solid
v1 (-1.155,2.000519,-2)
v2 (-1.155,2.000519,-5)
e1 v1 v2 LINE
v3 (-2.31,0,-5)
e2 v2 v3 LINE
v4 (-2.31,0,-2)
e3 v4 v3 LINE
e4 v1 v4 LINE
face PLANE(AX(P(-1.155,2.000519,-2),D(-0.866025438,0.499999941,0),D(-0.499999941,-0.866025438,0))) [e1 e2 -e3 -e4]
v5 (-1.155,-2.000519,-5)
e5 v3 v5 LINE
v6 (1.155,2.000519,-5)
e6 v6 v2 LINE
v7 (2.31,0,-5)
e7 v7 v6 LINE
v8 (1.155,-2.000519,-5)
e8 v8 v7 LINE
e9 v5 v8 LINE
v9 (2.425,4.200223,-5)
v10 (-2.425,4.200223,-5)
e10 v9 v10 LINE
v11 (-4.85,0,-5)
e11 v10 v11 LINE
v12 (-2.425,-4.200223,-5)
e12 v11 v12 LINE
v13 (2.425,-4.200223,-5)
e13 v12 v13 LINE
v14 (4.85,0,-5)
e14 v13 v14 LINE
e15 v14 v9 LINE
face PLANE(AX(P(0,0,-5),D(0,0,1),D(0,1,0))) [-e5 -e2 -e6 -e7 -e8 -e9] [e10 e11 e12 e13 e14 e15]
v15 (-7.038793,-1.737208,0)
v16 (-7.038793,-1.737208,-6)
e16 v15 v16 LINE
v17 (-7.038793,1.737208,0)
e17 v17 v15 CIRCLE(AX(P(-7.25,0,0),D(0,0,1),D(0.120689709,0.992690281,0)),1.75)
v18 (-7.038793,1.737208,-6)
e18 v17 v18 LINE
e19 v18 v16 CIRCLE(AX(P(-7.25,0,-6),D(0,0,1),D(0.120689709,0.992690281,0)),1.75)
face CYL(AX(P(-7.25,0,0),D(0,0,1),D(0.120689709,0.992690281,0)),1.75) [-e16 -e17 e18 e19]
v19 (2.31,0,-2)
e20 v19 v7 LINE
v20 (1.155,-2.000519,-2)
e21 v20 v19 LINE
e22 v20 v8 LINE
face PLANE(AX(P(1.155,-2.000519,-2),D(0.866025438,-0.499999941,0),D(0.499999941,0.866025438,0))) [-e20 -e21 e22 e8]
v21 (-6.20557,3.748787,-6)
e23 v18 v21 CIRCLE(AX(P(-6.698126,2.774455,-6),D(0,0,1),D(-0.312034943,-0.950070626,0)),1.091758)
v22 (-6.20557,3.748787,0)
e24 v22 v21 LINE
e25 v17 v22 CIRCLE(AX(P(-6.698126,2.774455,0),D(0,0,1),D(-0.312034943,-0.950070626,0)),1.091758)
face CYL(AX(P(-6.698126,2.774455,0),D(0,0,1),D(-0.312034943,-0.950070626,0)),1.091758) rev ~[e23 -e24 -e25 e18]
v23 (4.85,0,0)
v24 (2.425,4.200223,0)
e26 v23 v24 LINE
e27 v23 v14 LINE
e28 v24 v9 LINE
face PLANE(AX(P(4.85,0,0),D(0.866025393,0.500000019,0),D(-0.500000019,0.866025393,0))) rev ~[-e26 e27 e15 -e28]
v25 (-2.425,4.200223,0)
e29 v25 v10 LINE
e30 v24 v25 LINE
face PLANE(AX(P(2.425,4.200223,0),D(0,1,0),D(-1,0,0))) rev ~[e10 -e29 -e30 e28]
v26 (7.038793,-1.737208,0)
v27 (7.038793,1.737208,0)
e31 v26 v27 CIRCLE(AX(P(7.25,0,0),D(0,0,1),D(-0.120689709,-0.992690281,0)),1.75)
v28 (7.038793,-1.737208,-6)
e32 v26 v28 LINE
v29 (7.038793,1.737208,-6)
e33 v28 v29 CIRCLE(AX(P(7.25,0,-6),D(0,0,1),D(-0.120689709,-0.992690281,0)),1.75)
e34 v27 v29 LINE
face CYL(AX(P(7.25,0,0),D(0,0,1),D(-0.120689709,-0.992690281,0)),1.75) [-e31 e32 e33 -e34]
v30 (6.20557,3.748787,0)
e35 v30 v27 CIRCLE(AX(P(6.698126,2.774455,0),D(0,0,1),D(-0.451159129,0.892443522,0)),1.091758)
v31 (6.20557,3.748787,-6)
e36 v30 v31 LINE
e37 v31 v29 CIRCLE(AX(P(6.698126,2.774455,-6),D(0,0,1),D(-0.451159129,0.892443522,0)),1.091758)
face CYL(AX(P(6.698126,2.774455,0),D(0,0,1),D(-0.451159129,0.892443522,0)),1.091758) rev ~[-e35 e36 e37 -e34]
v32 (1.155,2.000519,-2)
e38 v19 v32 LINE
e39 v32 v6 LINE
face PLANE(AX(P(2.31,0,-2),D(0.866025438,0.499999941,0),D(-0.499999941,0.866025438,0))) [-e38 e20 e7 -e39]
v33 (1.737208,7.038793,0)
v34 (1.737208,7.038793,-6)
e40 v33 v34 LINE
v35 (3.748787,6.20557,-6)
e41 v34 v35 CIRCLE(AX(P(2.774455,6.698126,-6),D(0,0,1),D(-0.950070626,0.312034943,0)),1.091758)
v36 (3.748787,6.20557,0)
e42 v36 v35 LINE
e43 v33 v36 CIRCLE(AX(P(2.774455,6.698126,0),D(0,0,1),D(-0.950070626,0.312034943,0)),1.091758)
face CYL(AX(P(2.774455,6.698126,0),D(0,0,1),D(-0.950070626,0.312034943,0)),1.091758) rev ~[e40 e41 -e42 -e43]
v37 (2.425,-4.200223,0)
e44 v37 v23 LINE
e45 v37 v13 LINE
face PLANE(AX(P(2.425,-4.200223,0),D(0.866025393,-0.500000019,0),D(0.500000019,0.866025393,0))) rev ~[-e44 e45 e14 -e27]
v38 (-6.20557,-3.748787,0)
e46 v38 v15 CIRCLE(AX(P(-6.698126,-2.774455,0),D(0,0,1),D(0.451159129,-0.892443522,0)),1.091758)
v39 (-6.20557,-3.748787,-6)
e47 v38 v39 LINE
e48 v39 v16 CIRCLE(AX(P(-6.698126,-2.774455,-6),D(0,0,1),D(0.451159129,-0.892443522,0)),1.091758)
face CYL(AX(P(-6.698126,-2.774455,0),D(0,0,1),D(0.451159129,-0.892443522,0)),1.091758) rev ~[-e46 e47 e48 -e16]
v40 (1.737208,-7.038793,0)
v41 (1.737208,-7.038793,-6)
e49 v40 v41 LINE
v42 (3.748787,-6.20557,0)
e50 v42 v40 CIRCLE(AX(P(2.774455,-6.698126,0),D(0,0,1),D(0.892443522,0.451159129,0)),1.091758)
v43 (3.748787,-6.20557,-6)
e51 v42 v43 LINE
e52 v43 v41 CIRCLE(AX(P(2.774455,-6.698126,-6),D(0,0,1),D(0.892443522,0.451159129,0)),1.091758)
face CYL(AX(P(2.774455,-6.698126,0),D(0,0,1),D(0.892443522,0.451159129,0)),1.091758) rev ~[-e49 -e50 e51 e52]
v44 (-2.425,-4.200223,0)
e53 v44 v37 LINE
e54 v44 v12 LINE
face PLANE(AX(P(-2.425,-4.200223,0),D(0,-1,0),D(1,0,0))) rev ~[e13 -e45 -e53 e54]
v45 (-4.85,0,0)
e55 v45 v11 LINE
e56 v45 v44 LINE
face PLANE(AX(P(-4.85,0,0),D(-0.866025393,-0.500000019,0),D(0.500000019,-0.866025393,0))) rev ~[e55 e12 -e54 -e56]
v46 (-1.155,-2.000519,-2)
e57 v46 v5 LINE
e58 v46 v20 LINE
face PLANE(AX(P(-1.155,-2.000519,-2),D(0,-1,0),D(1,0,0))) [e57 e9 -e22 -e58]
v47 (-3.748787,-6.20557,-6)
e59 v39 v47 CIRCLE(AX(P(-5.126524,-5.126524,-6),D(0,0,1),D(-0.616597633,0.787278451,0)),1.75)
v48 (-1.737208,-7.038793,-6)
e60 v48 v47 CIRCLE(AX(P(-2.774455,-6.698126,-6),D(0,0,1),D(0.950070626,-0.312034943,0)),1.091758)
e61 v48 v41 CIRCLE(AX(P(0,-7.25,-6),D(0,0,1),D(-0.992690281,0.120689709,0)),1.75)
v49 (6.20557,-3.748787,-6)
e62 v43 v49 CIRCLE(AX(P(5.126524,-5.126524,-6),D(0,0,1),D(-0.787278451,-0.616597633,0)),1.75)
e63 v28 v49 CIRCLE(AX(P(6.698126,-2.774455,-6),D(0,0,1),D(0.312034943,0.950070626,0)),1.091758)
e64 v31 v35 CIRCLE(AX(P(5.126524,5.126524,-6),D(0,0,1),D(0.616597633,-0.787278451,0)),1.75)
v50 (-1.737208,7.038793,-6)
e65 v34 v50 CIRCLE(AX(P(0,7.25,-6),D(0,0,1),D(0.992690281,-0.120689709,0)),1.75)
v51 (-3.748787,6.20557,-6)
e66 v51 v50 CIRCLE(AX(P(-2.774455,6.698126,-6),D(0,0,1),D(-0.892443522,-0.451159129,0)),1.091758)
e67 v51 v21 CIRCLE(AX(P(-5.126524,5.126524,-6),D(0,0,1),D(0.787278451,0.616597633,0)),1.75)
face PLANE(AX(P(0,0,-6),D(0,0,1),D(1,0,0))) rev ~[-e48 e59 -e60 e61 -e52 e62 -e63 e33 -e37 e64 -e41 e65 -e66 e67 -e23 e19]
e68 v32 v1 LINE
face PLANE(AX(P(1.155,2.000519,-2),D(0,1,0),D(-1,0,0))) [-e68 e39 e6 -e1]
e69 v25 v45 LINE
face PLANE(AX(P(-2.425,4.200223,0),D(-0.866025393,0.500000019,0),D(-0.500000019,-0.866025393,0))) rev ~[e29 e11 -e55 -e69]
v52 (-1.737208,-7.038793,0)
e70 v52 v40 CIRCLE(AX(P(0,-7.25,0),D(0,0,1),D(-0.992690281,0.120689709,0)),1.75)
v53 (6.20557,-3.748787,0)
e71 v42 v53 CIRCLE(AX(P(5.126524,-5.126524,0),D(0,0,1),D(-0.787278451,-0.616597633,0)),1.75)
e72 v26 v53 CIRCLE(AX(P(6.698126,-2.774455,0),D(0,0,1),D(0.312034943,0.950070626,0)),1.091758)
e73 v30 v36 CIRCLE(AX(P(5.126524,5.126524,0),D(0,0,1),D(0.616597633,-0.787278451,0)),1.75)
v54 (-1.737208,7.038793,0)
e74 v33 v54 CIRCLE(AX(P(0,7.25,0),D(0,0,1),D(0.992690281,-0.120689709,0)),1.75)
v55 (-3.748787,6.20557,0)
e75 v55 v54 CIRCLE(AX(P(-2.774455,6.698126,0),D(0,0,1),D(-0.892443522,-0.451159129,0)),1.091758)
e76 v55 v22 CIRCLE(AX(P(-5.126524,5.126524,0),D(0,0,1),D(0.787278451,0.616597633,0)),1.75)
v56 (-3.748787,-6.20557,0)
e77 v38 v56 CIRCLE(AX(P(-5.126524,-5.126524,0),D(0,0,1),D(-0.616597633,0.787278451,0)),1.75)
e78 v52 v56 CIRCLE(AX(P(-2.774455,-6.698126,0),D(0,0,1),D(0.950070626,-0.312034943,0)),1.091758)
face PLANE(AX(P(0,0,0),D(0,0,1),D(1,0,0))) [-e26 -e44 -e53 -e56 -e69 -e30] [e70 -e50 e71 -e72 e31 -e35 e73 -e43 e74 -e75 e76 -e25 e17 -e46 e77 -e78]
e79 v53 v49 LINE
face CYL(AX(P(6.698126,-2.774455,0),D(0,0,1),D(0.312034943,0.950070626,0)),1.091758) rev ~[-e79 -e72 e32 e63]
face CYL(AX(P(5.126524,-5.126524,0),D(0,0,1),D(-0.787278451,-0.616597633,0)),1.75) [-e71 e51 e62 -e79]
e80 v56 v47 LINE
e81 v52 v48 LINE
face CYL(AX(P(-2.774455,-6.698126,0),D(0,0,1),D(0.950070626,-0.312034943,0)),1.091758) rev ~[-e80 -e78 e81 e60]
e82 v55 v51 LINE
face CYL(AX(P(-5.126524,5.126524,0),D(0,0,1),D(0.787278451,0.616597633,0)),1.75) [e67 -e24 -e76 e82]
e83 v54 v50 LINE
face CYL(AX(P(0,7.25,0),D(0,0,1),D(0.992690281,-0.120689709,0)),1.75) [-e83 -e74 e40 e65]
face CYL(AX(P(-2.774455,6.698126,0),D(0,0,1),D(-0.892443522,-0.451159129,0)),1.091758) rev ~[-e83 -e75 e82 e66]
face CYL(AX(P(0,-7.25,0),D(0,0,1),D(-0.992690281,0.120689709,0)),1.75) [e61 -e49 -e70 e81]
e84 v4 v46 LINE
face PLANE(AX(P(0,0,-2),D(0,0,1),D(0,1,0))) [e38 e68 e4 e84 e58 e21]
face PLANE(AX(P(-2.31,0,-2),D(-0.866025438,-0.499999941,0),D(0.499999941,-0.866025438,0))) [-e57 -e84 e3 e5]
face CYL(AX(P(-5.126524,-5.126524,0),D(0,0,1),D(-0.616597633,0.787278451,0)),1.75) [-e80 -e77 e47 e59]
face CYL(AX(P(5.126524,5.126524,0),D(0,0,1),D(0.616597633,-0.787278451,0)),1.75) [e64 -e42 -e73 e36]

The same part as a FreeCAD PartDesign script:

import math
import FreeCAD as App
import Part
import Sketcher

V = App.Vector
Q = App.Units.Quantity


def add_polygon(sketch, points):
    """Adds a closed chain of lines whose ends are joined by coincident constraints."""
    first, n = sketch.GeometryCount, len(points)
    for a, b in zip(points, points[1:] + points[:1]):
        sketch.addGeometry(Part.LineSegment(App.Vector(*a, 0), App.Vector(*b, 0)), False)
    for i in range(n):
        sketch.addConstraint(Sketcher.Constraint("Coincident", first + i, 2, first + (i + 1) % n, 1))

doc = App.newDocument("Part")
params = doc.addObject("Spreadsheet::Sheet", "Params")
for row, (alias, value) in enumerate([
    ("sketch1_width", "2.31 mm"),
    ("sketch1_length", "2.31 mm"),
    ("pad1_length", "3 mm"),
    ("sketch2_width", "4.85 mm"),
    ("pad2_length", "5 mm"),
    ("sketch3_radius", "1.75 mm"),
    ("pad3_length", "6 mm"),
], start=1):
    params.set(f"A{row}", alias)
    params.set(f"B{row}", "=" + value)
    params.setAlias(f"B{row}", alias)

body = doc.addObject("PartDesign::Body", "Body")

sketch1 = doc.addObject("Sketcher::SketchObject", "Sketch")
body.addObject(sketch1)
sketch1.AttachmentSupport = (doc.XY_Plane, [""])
sketch1.MapMode = "FlatFace"
sketch1.AttachmentOffset = App.Placement(V(0, 0, -2), App.Rotation())
add_polygon(sketch1, [(2.3, 0), (1.2, 2), (-1.2, 2), (-2.3, 0), (-1.2, -2), (1.2, -2)])
sketch1.addConstraint(Sketcher.Constraint("Horizontal", 1))
sketch1.addConstraint(Sketcher.Constraint("Horizontal", 4))
sketch1.addConstraint(Sketcher.Constraint("Symmetric", 0, 2, 3, 2, -1, 1))
sketch1.addConstraint(Sketcher.Constraint("Symmetric", 2, 2, 5, 2, -1, 1))
sketch1.addConstraint(Sketcher.Constraint("PointOnObject", 2, 2, -1))
sketch1.addConstraint(Sketcher.Constraint("Parallel", 2, 5))
sketch1.addConstraint(Sketcher.Constraint("Vertical", 1, 2, 3, 2))
sketch1.addConstraint(Sketcher.Constraint("Angle", 0, Q("119.999996 deg")))
sketch1.addConstraint(Sketcher.Constraint("DistanceX", 1, 2, 1, 1, Q("2.31 mm")))
sketch1.addConstraint(Sketcher.Constraint("Distance", 0, Q("2.31 mm")))
sketch1.setExpression("Constraints[14]", "Params.sketch1_width")
sketch1.setExpression("Constraints[15]", "Params.sketch1_length")
pad1 = doc.addObject("PartDesign::Pad", "Pad")
body.addObject(pad1)
pad1.Profile = sketch1
pad1.setExpression("Length", "Params.pad1_length")
pad1.Reversed = True
body2 = doc.addObject("PartDesign::Body", "Body001")

sketch2 = doc.addObject("Sketcher::SketchObject", "Sketch001")
body2.addObject(sketch2)
sketch2.AttachmentSupport = (doc.getObject("XY_Plane001"), [""])
sketch2.MapMode = "FlatFace"
add_polygon(sketch2, [(4.8, 0), (2.4, 4.2), (-2.4, 4.2), (-4.8, 0), (-2.4, -4.2), (2.4, -4.2)])
sketch2.addConstraint(Sketcher.Constraint("Horizontal", 1))
sketch2.addConstraint(Sketcher.Constraint("Horizontal", 4))
sketch2.addConstraint(Sketcher.Constraint("Symmetric", 0, 2, 3, 2, -1, 1))
sketch2.addConstraint(Sketcher.Constraint("Symmetric", 2, 2, 5, 2, -1, 1))
sketch2.addConstraint(Sketcher.Constraint("PointOnObject", 2, 2, -1))
sketch2.addConstraint(Sketcher.Constraint("Parallel", 2, 5))
sketch2.addConstraint(Sketcher.Constraint("Vertical", 1, 2, 3, 2))
sketch2.addConstraint(Sketcher.Constraint("Angle", 0, Q("120.000001 deg")))
sketch2.addConstraint(Sketcher.Constraint("DistanceX", 1, 2, 1, 1, Q("4.85 mm")))
sketch2.addConstraint(Sketcher.Constraint("DistanceX", 2, 2, 5, 2, Q("9.7 mm")))
sketch2.setExpression("Constraints[14]", "Params.sketch2_width")
pad2 = doc.addObject("PartDesign::Pad", "Pad001")
body2.addObject(pad2)
pad2.Profile = sketch2
pad2.setExpression("Length", "Params.pad2_length")
pad2.Reversed = True
body3 = doc.addObject("PartDesign::Body", "Body002")

sketch3 = doc.addObject("Sketcher::SketchObject", "Sketch002")
body3.addObject(sketch3)
sketch3.AttachmentSupport = (doc.getObject("XY_Plane002"), [""])
sketch3.MapMode = "FlatFace"
sketch3.addGeometry(Part.ArcOfCircle(Part.Circle(V(0, 7.2, 0), V(0, 0, 1), 1.8), math.radians(-7), math.radians(187)), False)
sketch3.addGeometry(Part.ArcOfCircle(Part.Circle(V(-2.8, 6.7, 0), V(0, 0, 1), 1.1), math.radians(-153), math.radians(18)), False)
sketch3.addGeometry(Part.ArcOfCircle(Part.Circle(V(-5.1, 5.1, 0), V(0, 0, 1), 1.7), math.radians(38), math.radians(232)), False)
sketch3.addGeometry(Part.ArcOfCircle(Part.Circle(V(-6.7, 2.8, 0), V(0, 0, 1), 1.1), math.radians(-108), math.radians(63)), False)
sketch3.addGeometry(Part.ArcOfCircle(Part.Circle(V(-7.2, 0, 0), V(0, 0, 1), 1.8), math.radians(83), math.radians(277)), False)
sketch3.addGeometry(Part.ArcOfCircle(Part.Circle(V(-6.7, -2.8, 0), V(0, 0, 1), 1.1), math.radians(-63), math.radians(108)), False)
sketch3.addGeometry(Part.ArcOfCircle(Part.Circle(V(-5.1, -5.1, 0), V(0, 0, 1), 1.7), math.radians(128), math.radians(322)), False)
sketch3.addGeometry(Part.ArcOfCircle(Part.Circle(V(-2.8, -6.7, 0), V(0, 0, 1), 1.1), math.radians(-18), math.radians(153)), False)
sketch3.addGeometry(Part.ArcOfCircle(Part.Circle(V(0, -7.2, 0), V(0, 0, 1), 1.8), math.radians(173), math.radians(367)), False)
sketch3.addGeometry(Part.ArcOfCircle(Part.Circle(V(2.8, -6.7, 0), V(0, 0, 1), 1.1), math.radians(27), math.radians(198)), False)
sketch3.addGeometry(Part.ArcOfCircle(Part.Circle(V(5.1, -5.1, 0), V(0, 0, 1), 1.7), math.radians(-142), math.radians(52)), False)
sketch3.addGeometry(Part.ArcOfCircle(Part.Circle(V(6.7, -2.8, 0), V(0, 0, 1), 1.1), math.radians(72), math.radians(243)), False)
sketch3.addGeometry(Part.ArcOfCircle(Part.Circle(V(7.2, 0, 0), V(0, 0, 1), 1.8), math.radians(-97), math.radians(97)), False)
sketch3.addGeometry(Part.ArcOfCircle(Part.Circle(V(6.7, 2.8, 0), V(0, 0, 1), 1.1), math.radians(117), math.radians(288)), False)
sketch3.addGeometry(Part.ArcOfCircle(Part.Circle(V(5.1, 5.1, 0), V(0, 0, 1), 1.7), math.radians(-52), math.radians(142)), False)
sketch3.addGeometry(Part.ArcOfCircle(Part.Circle(V(2.8, 6.7, 0), V(0, 0, 1), 1.1), math.radians(162), math.radians(333)), False)
sketch3.addConstraint(Sketcher.Constraint("Coincident", 0, 2, 1, 2))
sketch3.addConstraint(Sketcher.Constraint("Coincident", 1, 1, 2, 1))
sketch3.addConstraint(Sketcher.Constraint("Coincident", 2, 2, 3, 2))
sketch3.addConstraint(Sketcher.Constraint("Coincident", 3, 1, 4, 1))
sketch3.addConstraint(Sketcher.Constraint("Coincident", 4, 2, 5, 2))
sketch3.addConstraint(Sketcher.Constraint("Coincident", 5, 1, 6, 1))
sketch3.addConstraint(Sketcher.Constraint("Coincident", 6, 2, 7, 2))
sketch3.addConstraint(Sketcher.Constraint("Coincident", 7, 1, 8, 1))
sketch3.addConstraint(Sketcher.Constraint("Coincident", 8, 2, 9, 2))
sketch3.addConstraint(Sketcher.Constraint("Coincident", 9, 1, 10, 1))
sketch3.addConstraint(Sketcher.Constraint("Coincident", 10, 2, 11, 2))
sketch3.addConstraint(Sketcher.Constraint("Coincident", 11, 1, 12, 1))
sketch3.addConstraint(Sketcher.Constraint("Coincident", 12, 2, 13, 2))
sketch3.addConstraint(Sketcher.Constraint("Coincident", 13, 1, 14, 1))
sketch3.addConstraint(Sketcher.Constraint("Coincident", 14, 2, 15, 2))
sketch3.addConstraint(Sketcher.Constraint("Coincident", 15, 1, 0, 1))
sketch3.addConstraint(Sketcher.Constraint("Equal", 0, 2))
sketch3.addConstraint(Sketcher.Constraint("Equal", 1, 3))
sketch3.addConstraint(Sketcher.Constraint("Equal", 2, 4))
sketch3.addConstraint(Sketcher.Constraint("Equal", 3, 5))
sketch3.addConstraint(Sketcher.Constraint("Equal", 4, 6))
sketch3.addConstraint(Sketcher.Constraint("Equal", 5, 7))
sketch3.addConstraint(Sketcher.Constraint("Equal", 6, 8))
sketch3.addConstraint(Sketcher.Constraint("Equal", 7, 9))
sketch3.addConstraint(Sketcher.Constraint("Equal", 8, 10))
sketch3.addConstraint(Sketcher.Constraint("Equal", 9, 11))
sketch3.addConstraint(Sketcher.Constraint("Equal", 10, 12))
sketch3.addConstraint(Sketcher.Constraint("Equal", 11, 13))
sketch3.addConstraint(Sketcher.Constraint("Equal", 12, 14))
sketch3.addConstraint(Sketcher.Constraint("Equal", 13, 15))
sketch3.addConstraint(Sketcher.Constraint("Symmetric", 0, 3, 8, 3, -1, 1))
sketch3.addConstraint(Sketcher.Constraint("Symmetric", 1, 3, 9, 3, -1, 1))
sketch3.addConstraint(Sketcher.Constraint("Symmetric", 2, 3, 10, 3, -1, 1))
sketch3.addConstraint(Sketcher.Constraint("Symmetric", 3, 3, 11, 3, -1, 1))
sketch3.addConstraint(Sketcher.Constraint("Symmetric", 4, 3, 12, 3, -1, 1))
sketch3.addConstraint(Sketcher.Constraint("Symmetric", 5, 3, 13, 3, -1, 1))
sketch3.addConstraint(Sketcher.Constraint("Symmetric", 6, 3, 14, 3, -1, 1))
sketch3.addConstraint(Sketcher.Constraint("Symmetric", 7, 3, 15, 3, -1, 1))
sketch3.addConstraint(Sketcher.Constraint("Symmetric", 7, 3, 9, 3, -2))
sketch3.addConstraint(Sketcher.Constraint("Symmetric", 6, 3, 10, 3, -2))
sketch3.addConstraint(Sketcher.Constraint("Symmetric", 5, 3, 11, 3, -2))
sketch3.addConstraint(Sketcher.Constraint("PointOnObject", 0, 3, -2))
sketch3.addConstraint(Sketcher.Constraint("PointOnObject", 4, 3, -1))
sketch3.addConstraint(Sketcher.Constraint("Radius", 0, Q("1.75 mm")))
sketch3.addConstraint(Sketcher.Constraint("DistanceY", -1, 1, 0, 3, Q("7.25 mm")))
sketch3.addConstraint(Sketcher.Constraint("DistanceX", 4, 3, -1, 1, Q("7.25 mm")))
sketch3.addConstraint(Sketcher.Constraint("Radius", 1, Q("1.091758 mm")))
sketch3.addConstraint(Sketcher.Constraint("DistanceY", -1, 1, 1, 1, Q("6.20557 mm")))
sketch3.addConstraint(Sketcher.Constraint("DistanceX", 2, 2, -1, 1, Q("6.20557 mm")))
sketch3.addConstraint(Sketcher.Constraint("DistanceY", -1, 1, 3, 1, Q("1.737208 mm")))
sketch3.addConstraint(Sketcher.Constraint("DistanceX", 7, 1, -1, 1, Q("1.737208 mm")))
sketch3.addConstraint(Sketcher.Constraint("DistanceX", 2, 3, 1, 3, Q("2.352069 mm")))
sketch3.addConstraint(Sketcher.Constraint("DistanceY", 3, 3, 2, 3, Q("2.352069 mm")))
sketch3.setExpression("Constraints[43]", "Params.sketch3_radius")
pad3 = doc.addObject("PartDesign::Pad", "Pad002")
body3.addObject(pad3)
pad3.Profile = sketch3
pad3.setExpression("Length", "Params.pad3_length")
pad3.Reversed = True
doc.recompute()

boolean = doc.addObject("PartDesign::Boolean", "Boolean")
body3.addObject(boolean)
boolean.Type = "Cut"
boolean.addObjects([body2])
doc.recompute()

boolean2 = doc.addObject("PartDesign::Boolean", "Boolean001")
body3.addObject(boolean2)
boolean2.Type = "Fuse"
boolean2.addObjects([body])

doc.recompute()
